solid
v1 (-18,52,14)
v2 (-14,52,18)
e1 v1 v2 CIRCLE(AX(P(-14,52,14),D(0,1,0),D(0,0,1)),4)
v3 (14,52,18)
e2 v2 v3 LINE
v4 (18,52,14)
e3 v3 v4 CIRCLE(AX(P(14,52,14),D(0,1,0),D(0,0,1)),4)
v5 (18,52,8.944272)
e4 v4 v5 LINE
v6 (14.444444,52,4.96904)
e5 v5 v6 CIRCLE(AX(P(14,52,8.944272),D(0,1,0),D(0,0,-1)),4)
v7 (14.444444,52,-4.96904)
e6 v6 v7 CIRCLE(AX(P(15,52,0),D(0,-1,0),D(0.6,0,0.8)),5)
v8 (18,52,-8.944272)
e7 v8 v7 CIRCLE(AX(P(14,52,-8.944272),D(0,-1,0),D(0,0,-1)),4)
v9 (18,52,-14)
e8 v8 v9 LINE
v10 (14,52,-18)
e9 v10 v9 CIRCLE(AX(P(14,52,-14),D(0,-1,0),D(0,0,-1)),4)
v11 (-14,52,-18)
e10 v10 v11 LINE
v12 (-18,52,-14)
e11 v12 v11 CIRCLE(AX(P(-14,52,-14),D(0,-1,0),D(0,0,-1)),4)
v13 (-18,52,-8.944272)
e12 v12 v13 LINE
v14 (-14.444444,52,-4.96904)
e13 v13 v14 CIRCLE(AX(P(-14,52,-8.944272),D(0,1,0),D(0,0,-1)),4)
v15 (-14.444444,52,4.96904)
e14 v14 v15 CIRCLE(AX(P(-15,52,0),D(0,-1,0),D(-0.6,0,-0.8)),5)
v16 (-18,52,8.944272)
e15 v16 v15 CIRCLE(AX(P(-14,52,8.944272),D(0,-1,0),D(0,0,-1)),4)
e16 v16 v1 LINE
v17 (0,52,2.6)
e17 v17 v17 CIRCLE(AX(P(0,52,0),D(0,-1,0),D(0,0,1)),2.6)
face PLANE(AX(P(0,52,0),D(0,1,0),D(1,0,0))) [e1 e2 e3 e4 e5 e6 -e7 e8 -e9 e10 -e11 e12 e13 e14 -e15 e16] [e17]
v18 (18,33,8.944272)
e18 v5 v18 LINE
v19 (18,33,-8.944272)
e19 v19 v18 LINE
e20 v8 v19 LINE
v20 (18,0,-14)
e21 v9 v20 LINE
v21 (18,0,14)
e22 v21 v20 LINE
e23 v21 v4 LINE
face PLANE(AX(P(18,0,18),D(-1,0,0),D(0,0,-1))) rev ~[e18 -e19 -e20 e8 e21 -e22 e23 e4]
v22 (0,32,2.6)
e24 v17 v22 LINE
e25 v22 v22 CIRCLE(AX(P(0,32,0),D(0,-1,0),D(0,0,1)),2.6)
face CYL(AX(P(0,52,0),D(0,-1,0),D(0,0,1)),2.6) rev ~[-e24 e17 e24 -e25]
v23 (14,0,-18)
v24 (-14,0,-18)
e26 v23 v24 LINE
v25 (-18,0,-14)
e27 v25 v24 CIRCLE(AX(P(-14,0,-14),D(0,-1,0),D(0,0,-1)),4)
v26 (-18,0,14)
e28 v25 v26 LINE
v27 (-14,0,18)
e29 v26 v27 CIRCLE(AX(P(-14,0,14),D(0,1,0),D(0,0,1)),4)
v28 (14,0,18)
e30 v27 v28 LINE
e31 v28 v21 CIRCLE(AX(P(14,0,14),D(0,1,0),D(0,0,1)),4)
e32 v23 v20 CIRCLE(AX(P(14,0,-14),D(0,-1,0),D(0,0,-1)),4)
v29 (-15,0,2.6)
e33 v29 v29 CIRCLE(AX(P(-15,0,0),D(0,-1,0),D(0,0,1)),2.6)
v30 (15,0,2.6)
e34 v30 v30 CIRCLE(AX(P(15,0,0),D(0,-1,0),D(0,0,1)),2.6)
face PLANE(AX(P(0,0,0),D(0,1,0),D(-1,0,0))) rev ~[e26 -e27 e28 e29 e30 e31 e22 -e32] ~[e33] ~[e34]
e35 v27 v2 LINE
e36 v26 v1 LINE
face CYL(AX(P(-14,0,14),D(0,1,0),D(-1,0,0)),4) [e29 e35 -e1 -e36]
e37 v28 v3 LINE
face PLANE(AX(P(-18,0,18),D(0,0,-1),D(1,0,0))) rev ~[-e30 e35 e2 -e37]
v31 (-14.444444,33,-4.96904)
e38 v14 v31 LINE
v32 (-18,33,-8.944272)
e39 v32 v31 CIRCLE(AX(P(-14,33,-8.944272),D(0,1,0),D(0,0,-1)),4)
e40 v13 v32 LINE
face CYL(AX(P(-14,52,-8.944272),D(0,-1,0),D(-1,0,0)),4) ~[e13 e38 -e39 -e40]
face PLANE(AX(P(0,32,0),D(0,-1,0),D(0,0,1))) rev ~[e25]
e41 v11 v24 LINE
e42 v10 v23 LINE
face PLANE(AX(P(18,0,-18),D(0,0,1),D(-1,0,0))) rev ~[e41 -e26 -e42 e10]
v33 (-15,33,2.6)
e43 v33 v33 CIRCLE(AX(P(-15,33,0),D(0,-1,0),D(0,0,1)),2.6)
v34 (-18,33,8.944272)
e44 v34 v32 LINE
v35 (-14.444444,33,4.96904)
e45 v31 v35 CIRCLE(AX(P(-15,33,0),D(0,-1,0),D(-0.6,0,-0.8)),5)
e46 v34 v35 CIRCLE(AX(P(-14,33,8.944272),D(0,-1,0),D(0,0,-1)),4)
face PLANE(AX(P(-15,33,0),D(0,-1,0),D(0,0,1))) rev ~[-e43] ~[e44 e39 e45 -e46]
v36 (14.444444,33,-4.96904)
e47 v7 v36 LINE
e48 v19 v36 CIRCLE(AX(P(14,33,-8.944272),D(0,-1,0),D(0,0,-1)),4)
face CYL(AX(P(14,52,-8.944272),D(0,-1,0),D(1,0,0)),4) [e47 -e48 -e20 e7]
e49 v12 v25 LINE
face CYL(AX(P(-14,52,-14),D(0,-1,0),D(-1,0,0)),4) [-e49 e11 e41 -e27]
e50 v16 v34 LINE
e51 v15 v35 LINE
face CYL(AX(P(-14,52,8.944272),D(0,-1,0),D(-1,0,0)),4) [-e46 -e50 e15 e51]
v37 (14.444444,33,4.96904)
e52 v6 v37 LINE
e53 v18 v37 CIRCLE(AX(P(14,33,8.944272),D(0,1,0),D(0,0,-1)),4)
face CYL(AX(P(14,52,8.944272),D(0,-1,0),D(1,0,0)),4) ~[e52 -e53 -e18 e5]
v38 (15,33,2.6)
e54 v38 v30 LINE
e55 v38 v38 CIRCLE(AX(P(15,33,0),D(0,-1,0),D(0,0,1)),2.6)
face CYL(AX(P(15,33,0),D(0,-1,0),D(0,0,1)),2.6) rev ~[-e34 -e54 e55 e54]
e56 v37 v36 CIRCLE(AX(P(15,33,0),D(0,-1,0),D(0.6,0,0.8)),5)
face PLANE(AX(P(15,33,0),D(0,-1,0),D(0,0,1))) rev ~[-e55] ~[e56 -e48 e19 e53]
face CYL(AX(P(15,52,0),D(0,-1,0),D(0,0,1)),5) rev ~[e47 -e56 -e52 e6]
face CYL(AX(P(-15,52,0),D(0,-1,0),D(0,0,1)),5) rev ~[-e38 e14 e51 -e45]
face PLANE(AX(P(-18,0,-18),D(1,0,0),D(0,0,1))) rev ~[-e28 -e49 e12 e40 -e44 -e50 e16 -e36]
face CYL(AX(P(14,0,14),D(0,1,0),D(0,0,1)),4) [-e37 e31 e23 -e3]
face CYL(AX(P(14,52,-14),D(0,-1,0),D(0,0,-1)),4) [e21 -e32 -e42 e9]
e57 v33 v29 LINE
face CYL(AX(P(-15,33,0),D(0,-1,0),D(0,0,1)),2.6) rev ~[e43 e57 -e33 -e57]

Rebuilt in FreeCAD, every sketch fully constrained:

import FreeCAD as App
import Part
import Sketcher

V = App.Vector


def edges_at(feature, points):
    """Names of the edges that pass closest to the given points."""
    edges = feature.Shape.Edges
    near = lambda p: min(range(len(edges)), key=lambda i: edges[i].distToShape(Part.Vertex(*p))[0])
    return sorted({f"Edge{near(p) + 1}" for p in points})

doc = App.newDocument("Part")
body = doc.addObject("PartDesign::Body", "Body")

# Sketch on XZ plane
sketch1 = body.newObject("Sketcher::SketchObject", "Sketch")
sketch1.AttachmentSupport = (doc.getObject("XZ_Plane"), [""])
sketch1.MapMode = "FlatFace"
sketch1.addGeometry([
    Part.LineSegment(V(-18, -18, 0), V(-18, 18, 0)),
    Part.LineSegment(V(-18, 18, 0), V(18, 18, 0)),
    Part.LineSegment(V(18, 18, 0), V(18, -18, 0)),
    Part.LineSegment(V(18, -18, 0), V(-18, -18, 0)),
], False)
sketch1.addConstraint([
    Sketcher.Constraint("Coincident", 0, 2, 1, 1),
    Sketcher.Constraint("Coincident", 1, 2, 2, 1),
    Sketcher.Constraint("Coincident", 2, 2, 3, 1),
    Sketcher.Constraint("Coincident", 3, 2, 0, 1),
    Sketcher.Constraint("Vertical", 0),
    Sketcher.Constraint("Horizontal", 1),
    Sketcher.Constraint("Vertical", 2),
    Sketcher.Constraint("Horizontal", 3),
    Sketcher.Constraint("Symmetric", 0, 2, 2, 2, -1, 1),
    Sketcher.Constraint("Equal", 3, 0),
    Sketcher.Constraint("DistanceX", 1, 1, 1, 2, 36.0),
])
pad1 = body.newObject("PartDesign::Pad", "Pad")
pad1.Profile = sketch1
pad1.Length = 5
pad1.Reversed = True

# Sketch on XZ plane
sketch2 = body.newObject("Sketcher::SketchObject", "Sketch001")
sketch2.AttachmentSupport = (doc.getObject("XZ_Plane"), [""])
sketch2.MapMode = "FlatFace"
sketch2.AttachmentOffset = App.Placement(V(0, 0, -5), App.Rotation())
sketch2.addGeometry([
    Part.LineSegment(V(-18, 18, 0), V(18, 18, 0)),
    Part.LineSegment(V(18, 18, 0), V(18, -18, 0)),
    Part.LineSegment(V(18, -18, 0), V(-18, -18, 0)),
    Part.LineSegment(V(-18, -18, 0), V(-18, 18, 0)),
], False)
sketch2.addConstraint([
    Sketcher.Constraint("Coincident", 0, 2, 1, 1),
    Sketcher.Constraint("Coincident", 1, 2, 2, 1),
    Sketcher.Constraint("Coincident", 2, 2, 3, 1),
    Sketcher.Constraint("Coincident", 3, 2, 0, 1),
    Sketcher.Constraint("Horizontal", 0),
    Sketcher.Constraint("Vertical", 1),
    Sketcher.Constraint("Horizontal", 2),
    Sketcher.Constraint("Vertical", 3),
    Sketcher.Constraint("Symmetric", 0, 2, 2, 2, -1, 1),
    Sketcher.Constraint("Equal", 2, 1),
    Sketcher.Constraint("DistanceX", 0, 1, 0, 2, 36.0),
])
pad2 = body.newObject("PartDesign::Pad", "Pad001")
pad2.Profile = sketch2
pad2.Length = 47
pad2.Reversed = True

# Sketch on XZ plane
sketch3 = body.newObject("Sketcher::SketchObject", "Sketch002")
sketch3.AttachmentSupport = (doc.getObject("XZ_Plane"), [""])
sketch3.MapMode = "FlatFace"
sketch3.AttachmentOffset = App.Placement(V(0, 0, -52), App.Rotation())
sketch3.addGeometry([
    Part.Circle(V(-15, 0, 0), V(0, 0, 1), 2.6),
    Part.Circle(V(15, 0, 0), V(0, 0, 1), 2.6),
], False)
sketch3.addConstraint([
    Sketcher.Constraint("Equal", 0, 1),
    Sketcher.Constraint("Symmetric", 0, 3, 1, 3, -1, 1),
    Sketcher.Constraint("PointOnObject", 0, 3, -1),
    Sketcher.Constraint("Diameter", 0, 5.2),
    Sketcher.Constraint("DistanceX", 0, 3, -1, 1, 15.0),
])
doc.recompute()
hole = body.newObject("PartDesign::Hole", "Hole")
hole.Profile = sketch3
hole.ThreadType = "None"
hole.Diameter = 5.2
hole.DepthType = "ThroughAll"
hole.HoleCutType = "Counterbore"
hole.HoleCutDiameter = 10
hole.HoleCutDepth = 19
hole.Reversed = True
doc.recompute()

fillet = body.newObject("PartDesign::Fillet", "Fillet")
fillet.Base = (hole, edges_at(hole, [
    (18, 26, 18),
    (-18, 26, 18),
    (18, 26, -18),
    (-18, 26, -18),
    (18, 42.5, -4),
    (18, 42.5, 4),
    (-18, 42.5, 4),
    (-18, 42.5, -4),
]))
fillet.Radius = 4

# Sketch on XZ plane
sketch4 = body.newObject("Sketcher::SketchObject", "Sketch003")
sketch4.AttachmentSupport = (doc.getObject("XZ_Plane"), [""])
sketch4.MapMode = "FlatFace"
sketch4.AttachmentOffset = App.Placement(V(0, 0, -52), App.Rotation())
sketch4.addGeometry(Part.Circle(V(0, 0, 0), V(0, 0, 1), 2.6), False)
sketch4.addConstraint([
    Sketcher.Constraint("Coincident", 0, 3, -1, 1),
    Sketcher.Constraint("Diameter", 0, 5.2),
])
doc.recompute()
hole2 = body.newObject("PartDesign::Hole", "Hole001")
hole2.Profile = sketch4
hole2.ThreadType = "None"
hole2.Diameter = 5.2
hole2.DepthType = "Dimension"
hole2.Depth = 20
hole2.DrillPoint = "Flat"
hole2.Reversed = True

doc.recompute()
